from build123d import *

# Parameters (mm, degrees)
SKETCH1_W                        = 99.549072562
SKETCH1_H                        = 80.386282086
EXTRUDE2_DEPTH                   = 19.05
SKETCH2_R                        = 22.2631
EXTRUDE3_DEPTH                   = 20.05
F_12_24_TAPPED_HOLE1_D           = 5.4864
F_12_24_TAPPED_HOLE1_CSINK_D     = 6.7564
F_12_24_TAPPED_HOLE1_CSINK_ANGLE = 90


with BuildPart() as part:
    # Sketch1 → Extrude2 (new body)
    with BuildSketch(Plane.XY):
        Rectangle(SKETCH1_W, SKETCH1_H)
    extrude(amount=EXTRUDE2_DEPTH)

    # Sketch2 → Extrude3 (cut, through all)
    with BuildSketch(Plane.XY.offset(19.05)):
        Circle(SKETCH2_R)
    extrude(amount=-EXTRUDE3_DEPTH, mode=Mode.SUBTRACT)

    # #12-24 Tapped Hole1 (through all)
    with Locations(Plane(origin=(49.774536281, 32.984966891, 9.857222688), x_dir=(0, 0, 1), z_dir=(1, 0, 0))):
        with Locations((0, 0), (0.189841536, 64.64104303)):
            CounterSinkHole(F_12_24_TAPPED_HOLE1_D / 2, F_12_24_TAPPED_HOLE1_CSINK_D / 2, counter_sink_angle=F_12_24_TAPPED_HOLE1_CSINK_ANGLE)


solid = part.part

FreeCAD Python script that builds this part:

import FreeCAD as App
import Part
import Sketcher

V = App.Vector
Q = App.Units.Quantity


def add_polygon(sketch, points):
    """Adds a closed chain of lines whose ends are joined by coincident constraints."""
    first, n = sketch.GeometryCount, len(points)
    for a, b in zip(points, points[1:] + points[:1]):
        sketch.addGeometry(Part.LineSegment(App.Vector(*a, 0), App.Vector(*b, 0)), False)
    for i in range(n):
        sketch.addConstraint(Sketcher.Constraint("Coincident", first + i, 2, first + (i + 1) % n, 1))

doc = App.newDocument("Part")
body = doc.addObject("PartDesign::Body", "Body")

sketch1 = body.newObject("Sketcher::SketchObject", "Sketch")
sketch1.AttachmentSupport = (doc.getObject("XY_Plane"), [""])
sketch1.MapMode = "FlatFace"
add_polygon(sketch1, [(-50, 40), (-50, -40), (50, -40), (50, 40)])
sketch1.addConstraint(Sketcher.Constraint("Vertical", 0))
sketch1.addConstraint(Sketcher.Constraint("Horizontal", 1))
sketch1.addConstraint(Sketcher.Constraint("Vertical", 2))
sketch1.addConstraint(Sketcher.Constraint("Horizontal", 3))
sketch1.addConstraint(Sketcher.Constraint("Symmetric", 0, 2, 2, 2, -1, 1))
sketch1.addConstraint(Sketcher.Constraint("DistanceX", 1, 1, 1, 2, 99.549073))
sketch1.addConstraint(Sketcher.Constraint("DistanceY", 0, 2, 0, 1, 80.386282))
pad1 = body.newObject("PartDesign::Pad", "Pad")
pad1.Profile = sketch1
pad1.Length = Q("0.75 in")

sketch2 = body.newObject("Sketcher::SketchObject", "Sketch001")
sketch2.AttachmentSupport = (doc.getObject("XY_Plane"), [""])
sketch2.MapMode = "FlatFace"
sketch2.AttachmentOffset = App.Placement(V(0, 0, 0.75 * 25.4), App.Rotation())
sketch2.addGeometry(Part.Circle(V(0, 0, 0), V(0, 0, 1), 22), False)
sketch2.addConstraint(Sketcher.Constraint("Coincident", 0, 3, -1, 1))
sketch2.addConstraint(Sketcher.Constraint("Diameter", 0, Q("1.753 in")))
pocket1 = body.newObject("PartDesign::Pocket", "Pocket")
pocket1.Profile = sketch2
pocket1.Type = "ThroughAll"

sketch3 = body.newObject("Sketcher::SketchObject", "Sketch002")
sketch3.AttachmentSupport = (doc.getObject("YZ_Plane"), [""])
sketch3.MapMode = "FlatFace"
sketch3.AttachmentOffset = App.Placement(V(0, 0, 49.774536), App.Rotation())
sketch3.addGeometry(Part.Circle(V(33, 9.9, 0), V(0, 0, 1), 2.7), False)
sketch3.addGeometry(Part.Circle(V(-31.7, 10, 0), V(0, 0, 1), 2.7), False)
sketch3.addConstraint(Sketcher.Constraint("Equal", 0, 1))
sketch3.addConstraint(Sketcher.Constraint("Diameter", 0, Q("0.216 in")))
sketch3.addConstraint(Sketcher.Constraint("DistanceY", 0, 3, 1, 3, 0.189842))
sketch3.addConstraint(Sketcher.Constraint("DistanceX", -1, 1, 0, 3, 32.984967))
sketch3.addConstraint(Sketcher.Constraint("DistanceY", -1, 1, 0, 3, 9.857223))
sketch3.addConstraint(Sketcher.Constraint("DistanceX", 1, 3, -1, 1, 31.656076))
doc.recompute()
hole = body.newObject("PartDesign::Hole", "Hole")
hole.Profile = sketch3
hole.ThreadType = "None"
hole.Diameter = Q("0.216 in")
hole.DepthType = "ThroughAll"
hole.HoleCutType = "Countersink"
hole.HoleCutDiameter = Q("0.266 in")
hole.HoleCutCountersinkAngle = 90

doc.recompute()
